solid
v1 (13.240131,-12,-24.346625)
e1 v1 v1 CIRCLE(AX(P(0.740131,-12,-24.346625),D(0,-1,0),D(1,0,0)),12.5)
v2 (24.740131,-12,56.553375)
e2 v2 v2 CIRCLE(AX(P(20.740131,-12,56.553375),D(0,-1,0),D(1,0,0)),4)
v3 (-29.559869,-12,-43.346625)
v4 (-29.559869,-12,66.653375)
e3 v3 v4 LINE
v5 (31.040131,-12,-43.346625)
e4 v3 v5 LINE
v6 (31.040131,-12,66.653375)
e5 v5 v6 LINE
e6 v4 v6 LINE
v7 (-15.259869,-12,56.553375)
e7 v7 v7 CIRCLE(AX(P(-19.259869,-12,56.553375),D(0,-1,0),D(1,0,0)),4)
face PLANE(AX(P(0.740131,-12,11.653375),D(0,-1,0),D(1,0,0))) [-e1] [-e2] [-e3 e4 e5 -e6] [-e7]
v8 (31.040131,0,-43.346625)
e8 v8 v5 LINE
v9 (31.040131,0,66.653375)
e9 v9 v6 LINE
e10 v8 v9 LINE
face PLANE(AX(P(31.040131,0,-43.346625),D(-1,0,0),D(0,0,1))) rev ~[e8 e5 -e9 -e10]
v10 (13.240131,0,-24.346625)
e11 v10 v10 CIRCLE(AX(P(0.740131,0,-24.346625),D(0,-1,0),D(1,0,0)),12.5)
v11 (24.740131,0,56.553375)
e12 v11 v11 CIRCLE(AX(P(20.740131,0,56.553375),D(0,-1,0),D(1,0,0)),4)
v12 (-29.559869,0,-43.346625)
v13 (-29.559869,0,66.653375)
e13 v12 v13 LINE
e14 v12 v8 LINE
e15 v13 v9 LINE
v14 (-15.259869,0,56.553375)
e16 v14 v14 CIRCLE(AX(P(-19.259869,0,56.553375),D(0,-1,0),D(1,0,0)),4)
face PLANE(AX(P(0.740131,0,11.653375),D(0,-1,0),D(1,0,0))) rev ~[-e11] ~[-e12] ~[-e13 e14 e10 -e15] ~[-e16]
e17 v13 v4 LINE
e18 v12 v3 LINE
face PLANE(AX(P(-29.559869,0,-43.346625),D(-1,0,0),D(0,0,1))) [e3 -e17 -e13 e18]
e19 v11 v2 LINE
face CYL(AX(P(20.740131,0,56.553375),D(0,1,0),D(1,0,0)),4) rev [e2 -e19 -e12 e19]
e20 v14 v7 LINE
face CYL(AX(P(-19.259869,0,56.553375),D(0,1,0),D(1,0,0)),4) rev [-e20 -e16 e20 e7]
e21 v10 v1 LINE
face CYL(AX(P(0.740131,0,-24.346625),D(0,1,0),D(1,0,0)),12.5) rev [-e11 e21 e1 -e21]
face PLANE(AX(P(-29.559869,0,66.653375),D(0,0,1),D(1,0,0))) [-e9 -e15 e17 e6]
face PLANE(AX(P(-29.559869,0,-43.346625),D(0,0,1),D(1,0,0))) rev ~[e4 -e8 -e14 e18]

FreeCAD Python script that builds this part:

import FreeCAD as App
import Part
import Sketcher
from FreeCAD import Vector

doc = App.newDocument("Part")
params = doc.addObject("Spreadsheet::Sheet", "Params")
for row, (alias, value) in enumerate([
    ("sketch1_diameter", "25 mm"),
    ("sketch1_diameter2", "8 mm"),
    ("sketch1_height", "110 mm"),
    ("sketch1_width", "60.6 mm"),
    ("pad1_length", "12 mm"),
], start=1):
    params.set(f"A{row}", alias)
    params.set(f"B{row}", "=" + value)
    params.setAlias(f"B{row}", alias)

body = doc.addObject("PartDesign::Body", "Body")

sketch1 = body.newObject("Sketcher::SketchObject", "Sketch")
sketch1.AttachmentSupport = (doc.getObject("XZ_Plane"), [""])
sketch1.MapMode = "FlatFace"
sketch1.addGeometry([
    Part.LineSegment(Vector(-29.6, 66.7, 0), Vector(-29.6, -43.3, 0)),
    Part.LineSegment(Vector(-29.6, -43.3, 0), Vector(31, -43.3, 0)),
    Part.LineSegment(Vector(31, -43.3, 0), Vector(31, 66.7, 0)),
    Part.LineSegment(Vector(31, 66.7, 0), Vector(-29.6, 66.7, 0)),
    Part.Circle(Vector(0.7, -24.3, 0), Vector(0, 0, 1), 12.5),
    Part.Circle(Vector(-19.3, 56.6, 0), Vector(0, 0, 1), 4),
    Part.Circle(Vector(20.7, 56.6, 0), Vector(0, 0, 1), 4),
], False)
sketch1.addConstraint([
    Sketcher.Constraint("Coincident", 0, 2, 1, 1),
    Sketcher.Constraint("Coincident", 1, 2, 2, 1),
    Sketcher.Constraint("Coincident", 2, 2, 3, 1),
    Sketcher.Constraint("Coincident", 3, 2, 0, 1),
    Sketcher.Constraint("Vertical", 0),
    Sketcher.Constraint("Horizontal", 1),
    Sketcher.Constraint("Vertical", 2),
    Sketcher.Constraint("Horizontal", 3),
    Sketcher.Constraint("Equal", 5, 6),
    Sketcher.Constraint("Horizontal", 5, 3, 6, 3),
    Sketcher.Constraint("Diameter", 4, 25.0),
    Sketcher.Constraint("Diameter", 5, 8.0),
    Sketcher.Constraint("DistanceY", 0, 2, 0, 1, 110.0),
    Sketcher.Constraint("DistanceX", 1, 1, 1, 2, 60.6),
    Sketcher.Constraint("DistanceX", 5, 3, 4, 3, 20.0),
    Sketcher.Constraint("DistanceX", 5, 3, 6, 3, 40.0),
    Sketcher.Constraint("DistanceY", 0, 2, 4, 3, 19.0),
    Sketcher.Constraint("DistanceY", 4, 3, 5, 3, 80.9),
    Sketcher.Constraint("DistanceX", 0, 2, 4, 3, 30.3),
    Sketcher.Constraint("DistanceX", -1, 1, 4, 3, 0.740131),
    Sketcher.Constraint("DistanceY", 4, 3, -1, 1, 24.346625),
])
sketch1.setExpression("Constraints[10]", "Params.sketch1_diameter")
sketch1.setExpression("Constraints[11]", "Params.sketch1_diameter2")
sketch1.setExpression("Constraints[12]", "Params.sketch1_height")
sketch1.setExpression("Constraints[13]", "Params.sketch1_width")
pad1 = body.newObject("PartDesign::Pad", "Pad")
pad1.Profile = sketch1
pad1.setExpression("Length", "Params.pad1_length")

doc.recompute()
